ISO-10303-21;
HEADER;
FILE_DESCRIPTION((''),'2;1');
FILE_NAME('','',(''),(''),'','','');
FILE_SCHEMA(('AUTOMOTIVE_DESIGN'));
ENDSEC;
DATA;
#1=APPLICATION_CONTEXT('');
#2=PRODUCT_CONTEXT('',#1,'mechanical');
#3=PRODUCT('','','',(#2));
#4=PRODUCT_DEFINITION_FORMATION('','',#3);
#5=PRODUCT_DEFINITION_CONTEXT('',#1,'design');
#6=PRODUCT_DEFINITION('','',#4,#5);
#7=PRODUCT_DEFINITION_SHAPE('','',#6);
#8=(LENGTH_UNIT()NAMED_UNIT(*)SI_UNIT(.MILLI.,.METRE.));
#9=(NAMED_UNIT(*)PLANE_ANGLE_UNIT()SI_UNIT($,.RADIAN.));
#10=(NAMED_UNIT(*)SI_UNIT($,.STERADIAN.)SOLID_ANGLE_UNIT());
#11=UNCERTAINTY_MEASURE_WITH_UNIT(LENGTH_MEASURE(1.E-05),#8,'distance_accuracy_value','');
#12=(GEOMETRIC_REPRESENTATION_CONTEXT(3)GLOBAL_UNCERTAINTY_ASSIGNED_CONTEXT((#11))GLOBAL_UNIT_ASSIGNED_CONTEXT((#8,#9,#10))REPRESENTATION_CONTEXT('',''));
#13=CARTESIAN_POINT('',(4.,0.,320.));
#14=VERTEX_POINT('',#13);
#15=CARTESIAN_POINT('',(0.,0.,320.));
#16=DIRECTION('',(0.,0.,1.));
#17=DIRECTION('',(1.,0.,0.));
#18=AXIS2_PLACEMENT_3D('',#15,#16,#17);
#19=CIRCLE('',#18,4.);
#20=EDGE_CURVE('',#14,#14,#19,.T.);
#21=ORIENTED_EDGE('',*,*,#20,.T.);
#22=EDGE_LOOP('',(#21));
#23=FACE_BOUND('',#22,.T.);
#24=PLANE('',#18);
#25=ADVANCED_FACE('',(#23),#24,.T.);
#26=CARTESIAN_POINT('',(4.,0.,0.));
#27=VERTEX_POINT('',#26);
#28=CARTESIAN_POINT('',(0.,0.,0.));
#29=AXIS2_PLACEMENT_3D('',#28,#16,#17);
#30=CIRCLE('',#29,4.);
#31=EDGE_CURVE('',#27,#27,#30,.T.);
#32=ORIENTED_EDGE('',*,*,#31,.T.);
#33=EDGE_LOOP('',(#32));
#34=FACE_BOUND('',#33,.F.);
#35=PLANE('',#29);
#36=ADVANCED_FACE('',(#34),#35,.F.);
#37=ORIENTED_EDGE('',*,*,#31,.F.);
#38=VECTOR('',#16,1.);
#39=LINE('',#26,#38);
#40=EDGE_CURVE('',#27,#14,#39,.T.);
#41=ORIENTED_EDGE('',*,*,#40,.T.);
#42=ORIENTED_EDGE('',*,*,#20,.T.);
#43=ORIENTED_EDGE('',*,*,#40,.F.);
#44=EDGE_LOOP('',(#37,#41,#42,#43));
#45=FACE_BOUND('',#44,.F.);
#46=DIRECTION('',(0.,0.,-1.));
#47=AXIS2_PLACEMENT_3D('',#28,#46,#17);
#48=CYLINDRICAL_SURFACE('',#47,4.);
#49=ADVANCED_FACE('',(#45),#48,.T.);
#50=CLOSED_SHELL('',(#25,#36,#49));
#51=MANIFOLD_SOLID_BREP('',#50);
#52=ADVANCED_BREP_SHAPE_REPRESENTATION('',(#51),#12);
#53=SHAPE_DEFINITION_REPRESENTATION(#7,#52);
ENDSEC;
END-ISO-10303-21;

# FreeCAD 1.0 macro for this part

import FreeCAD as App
import Part
import Sketcher
from FreeCAD import Vector
Q = App.Units.Quantity

doc = App.newDocument("Part")
body = doc.addObject("PartDesign::Body", "Body")

# Sketch on XY plane
sketch1 = body.newObject("Sketcher::SketchObject", "Sketch")
sketch1.AttachmentSupport = (doc.getObject("XY_Plane"), [""])
sketch1.MapMode = "FlatFace"
sketch1.addGeometry(Part.Circle(Vector(0, 0, 0), Vector(0, 0, 1), 4), False)
sketch1.addConstraint(Sketcher.Constraint("Coincident", 0, 3, -1, 1))
sketch1.addConstraint(Sketcher.Constraint("Diameter", 0, Q("8 mm")))
pad1 = body.newObject("PartDesign::Pad", "Pad")
pad1.Profile = sketch1
pad1.Length = 320

doc.recompute()
